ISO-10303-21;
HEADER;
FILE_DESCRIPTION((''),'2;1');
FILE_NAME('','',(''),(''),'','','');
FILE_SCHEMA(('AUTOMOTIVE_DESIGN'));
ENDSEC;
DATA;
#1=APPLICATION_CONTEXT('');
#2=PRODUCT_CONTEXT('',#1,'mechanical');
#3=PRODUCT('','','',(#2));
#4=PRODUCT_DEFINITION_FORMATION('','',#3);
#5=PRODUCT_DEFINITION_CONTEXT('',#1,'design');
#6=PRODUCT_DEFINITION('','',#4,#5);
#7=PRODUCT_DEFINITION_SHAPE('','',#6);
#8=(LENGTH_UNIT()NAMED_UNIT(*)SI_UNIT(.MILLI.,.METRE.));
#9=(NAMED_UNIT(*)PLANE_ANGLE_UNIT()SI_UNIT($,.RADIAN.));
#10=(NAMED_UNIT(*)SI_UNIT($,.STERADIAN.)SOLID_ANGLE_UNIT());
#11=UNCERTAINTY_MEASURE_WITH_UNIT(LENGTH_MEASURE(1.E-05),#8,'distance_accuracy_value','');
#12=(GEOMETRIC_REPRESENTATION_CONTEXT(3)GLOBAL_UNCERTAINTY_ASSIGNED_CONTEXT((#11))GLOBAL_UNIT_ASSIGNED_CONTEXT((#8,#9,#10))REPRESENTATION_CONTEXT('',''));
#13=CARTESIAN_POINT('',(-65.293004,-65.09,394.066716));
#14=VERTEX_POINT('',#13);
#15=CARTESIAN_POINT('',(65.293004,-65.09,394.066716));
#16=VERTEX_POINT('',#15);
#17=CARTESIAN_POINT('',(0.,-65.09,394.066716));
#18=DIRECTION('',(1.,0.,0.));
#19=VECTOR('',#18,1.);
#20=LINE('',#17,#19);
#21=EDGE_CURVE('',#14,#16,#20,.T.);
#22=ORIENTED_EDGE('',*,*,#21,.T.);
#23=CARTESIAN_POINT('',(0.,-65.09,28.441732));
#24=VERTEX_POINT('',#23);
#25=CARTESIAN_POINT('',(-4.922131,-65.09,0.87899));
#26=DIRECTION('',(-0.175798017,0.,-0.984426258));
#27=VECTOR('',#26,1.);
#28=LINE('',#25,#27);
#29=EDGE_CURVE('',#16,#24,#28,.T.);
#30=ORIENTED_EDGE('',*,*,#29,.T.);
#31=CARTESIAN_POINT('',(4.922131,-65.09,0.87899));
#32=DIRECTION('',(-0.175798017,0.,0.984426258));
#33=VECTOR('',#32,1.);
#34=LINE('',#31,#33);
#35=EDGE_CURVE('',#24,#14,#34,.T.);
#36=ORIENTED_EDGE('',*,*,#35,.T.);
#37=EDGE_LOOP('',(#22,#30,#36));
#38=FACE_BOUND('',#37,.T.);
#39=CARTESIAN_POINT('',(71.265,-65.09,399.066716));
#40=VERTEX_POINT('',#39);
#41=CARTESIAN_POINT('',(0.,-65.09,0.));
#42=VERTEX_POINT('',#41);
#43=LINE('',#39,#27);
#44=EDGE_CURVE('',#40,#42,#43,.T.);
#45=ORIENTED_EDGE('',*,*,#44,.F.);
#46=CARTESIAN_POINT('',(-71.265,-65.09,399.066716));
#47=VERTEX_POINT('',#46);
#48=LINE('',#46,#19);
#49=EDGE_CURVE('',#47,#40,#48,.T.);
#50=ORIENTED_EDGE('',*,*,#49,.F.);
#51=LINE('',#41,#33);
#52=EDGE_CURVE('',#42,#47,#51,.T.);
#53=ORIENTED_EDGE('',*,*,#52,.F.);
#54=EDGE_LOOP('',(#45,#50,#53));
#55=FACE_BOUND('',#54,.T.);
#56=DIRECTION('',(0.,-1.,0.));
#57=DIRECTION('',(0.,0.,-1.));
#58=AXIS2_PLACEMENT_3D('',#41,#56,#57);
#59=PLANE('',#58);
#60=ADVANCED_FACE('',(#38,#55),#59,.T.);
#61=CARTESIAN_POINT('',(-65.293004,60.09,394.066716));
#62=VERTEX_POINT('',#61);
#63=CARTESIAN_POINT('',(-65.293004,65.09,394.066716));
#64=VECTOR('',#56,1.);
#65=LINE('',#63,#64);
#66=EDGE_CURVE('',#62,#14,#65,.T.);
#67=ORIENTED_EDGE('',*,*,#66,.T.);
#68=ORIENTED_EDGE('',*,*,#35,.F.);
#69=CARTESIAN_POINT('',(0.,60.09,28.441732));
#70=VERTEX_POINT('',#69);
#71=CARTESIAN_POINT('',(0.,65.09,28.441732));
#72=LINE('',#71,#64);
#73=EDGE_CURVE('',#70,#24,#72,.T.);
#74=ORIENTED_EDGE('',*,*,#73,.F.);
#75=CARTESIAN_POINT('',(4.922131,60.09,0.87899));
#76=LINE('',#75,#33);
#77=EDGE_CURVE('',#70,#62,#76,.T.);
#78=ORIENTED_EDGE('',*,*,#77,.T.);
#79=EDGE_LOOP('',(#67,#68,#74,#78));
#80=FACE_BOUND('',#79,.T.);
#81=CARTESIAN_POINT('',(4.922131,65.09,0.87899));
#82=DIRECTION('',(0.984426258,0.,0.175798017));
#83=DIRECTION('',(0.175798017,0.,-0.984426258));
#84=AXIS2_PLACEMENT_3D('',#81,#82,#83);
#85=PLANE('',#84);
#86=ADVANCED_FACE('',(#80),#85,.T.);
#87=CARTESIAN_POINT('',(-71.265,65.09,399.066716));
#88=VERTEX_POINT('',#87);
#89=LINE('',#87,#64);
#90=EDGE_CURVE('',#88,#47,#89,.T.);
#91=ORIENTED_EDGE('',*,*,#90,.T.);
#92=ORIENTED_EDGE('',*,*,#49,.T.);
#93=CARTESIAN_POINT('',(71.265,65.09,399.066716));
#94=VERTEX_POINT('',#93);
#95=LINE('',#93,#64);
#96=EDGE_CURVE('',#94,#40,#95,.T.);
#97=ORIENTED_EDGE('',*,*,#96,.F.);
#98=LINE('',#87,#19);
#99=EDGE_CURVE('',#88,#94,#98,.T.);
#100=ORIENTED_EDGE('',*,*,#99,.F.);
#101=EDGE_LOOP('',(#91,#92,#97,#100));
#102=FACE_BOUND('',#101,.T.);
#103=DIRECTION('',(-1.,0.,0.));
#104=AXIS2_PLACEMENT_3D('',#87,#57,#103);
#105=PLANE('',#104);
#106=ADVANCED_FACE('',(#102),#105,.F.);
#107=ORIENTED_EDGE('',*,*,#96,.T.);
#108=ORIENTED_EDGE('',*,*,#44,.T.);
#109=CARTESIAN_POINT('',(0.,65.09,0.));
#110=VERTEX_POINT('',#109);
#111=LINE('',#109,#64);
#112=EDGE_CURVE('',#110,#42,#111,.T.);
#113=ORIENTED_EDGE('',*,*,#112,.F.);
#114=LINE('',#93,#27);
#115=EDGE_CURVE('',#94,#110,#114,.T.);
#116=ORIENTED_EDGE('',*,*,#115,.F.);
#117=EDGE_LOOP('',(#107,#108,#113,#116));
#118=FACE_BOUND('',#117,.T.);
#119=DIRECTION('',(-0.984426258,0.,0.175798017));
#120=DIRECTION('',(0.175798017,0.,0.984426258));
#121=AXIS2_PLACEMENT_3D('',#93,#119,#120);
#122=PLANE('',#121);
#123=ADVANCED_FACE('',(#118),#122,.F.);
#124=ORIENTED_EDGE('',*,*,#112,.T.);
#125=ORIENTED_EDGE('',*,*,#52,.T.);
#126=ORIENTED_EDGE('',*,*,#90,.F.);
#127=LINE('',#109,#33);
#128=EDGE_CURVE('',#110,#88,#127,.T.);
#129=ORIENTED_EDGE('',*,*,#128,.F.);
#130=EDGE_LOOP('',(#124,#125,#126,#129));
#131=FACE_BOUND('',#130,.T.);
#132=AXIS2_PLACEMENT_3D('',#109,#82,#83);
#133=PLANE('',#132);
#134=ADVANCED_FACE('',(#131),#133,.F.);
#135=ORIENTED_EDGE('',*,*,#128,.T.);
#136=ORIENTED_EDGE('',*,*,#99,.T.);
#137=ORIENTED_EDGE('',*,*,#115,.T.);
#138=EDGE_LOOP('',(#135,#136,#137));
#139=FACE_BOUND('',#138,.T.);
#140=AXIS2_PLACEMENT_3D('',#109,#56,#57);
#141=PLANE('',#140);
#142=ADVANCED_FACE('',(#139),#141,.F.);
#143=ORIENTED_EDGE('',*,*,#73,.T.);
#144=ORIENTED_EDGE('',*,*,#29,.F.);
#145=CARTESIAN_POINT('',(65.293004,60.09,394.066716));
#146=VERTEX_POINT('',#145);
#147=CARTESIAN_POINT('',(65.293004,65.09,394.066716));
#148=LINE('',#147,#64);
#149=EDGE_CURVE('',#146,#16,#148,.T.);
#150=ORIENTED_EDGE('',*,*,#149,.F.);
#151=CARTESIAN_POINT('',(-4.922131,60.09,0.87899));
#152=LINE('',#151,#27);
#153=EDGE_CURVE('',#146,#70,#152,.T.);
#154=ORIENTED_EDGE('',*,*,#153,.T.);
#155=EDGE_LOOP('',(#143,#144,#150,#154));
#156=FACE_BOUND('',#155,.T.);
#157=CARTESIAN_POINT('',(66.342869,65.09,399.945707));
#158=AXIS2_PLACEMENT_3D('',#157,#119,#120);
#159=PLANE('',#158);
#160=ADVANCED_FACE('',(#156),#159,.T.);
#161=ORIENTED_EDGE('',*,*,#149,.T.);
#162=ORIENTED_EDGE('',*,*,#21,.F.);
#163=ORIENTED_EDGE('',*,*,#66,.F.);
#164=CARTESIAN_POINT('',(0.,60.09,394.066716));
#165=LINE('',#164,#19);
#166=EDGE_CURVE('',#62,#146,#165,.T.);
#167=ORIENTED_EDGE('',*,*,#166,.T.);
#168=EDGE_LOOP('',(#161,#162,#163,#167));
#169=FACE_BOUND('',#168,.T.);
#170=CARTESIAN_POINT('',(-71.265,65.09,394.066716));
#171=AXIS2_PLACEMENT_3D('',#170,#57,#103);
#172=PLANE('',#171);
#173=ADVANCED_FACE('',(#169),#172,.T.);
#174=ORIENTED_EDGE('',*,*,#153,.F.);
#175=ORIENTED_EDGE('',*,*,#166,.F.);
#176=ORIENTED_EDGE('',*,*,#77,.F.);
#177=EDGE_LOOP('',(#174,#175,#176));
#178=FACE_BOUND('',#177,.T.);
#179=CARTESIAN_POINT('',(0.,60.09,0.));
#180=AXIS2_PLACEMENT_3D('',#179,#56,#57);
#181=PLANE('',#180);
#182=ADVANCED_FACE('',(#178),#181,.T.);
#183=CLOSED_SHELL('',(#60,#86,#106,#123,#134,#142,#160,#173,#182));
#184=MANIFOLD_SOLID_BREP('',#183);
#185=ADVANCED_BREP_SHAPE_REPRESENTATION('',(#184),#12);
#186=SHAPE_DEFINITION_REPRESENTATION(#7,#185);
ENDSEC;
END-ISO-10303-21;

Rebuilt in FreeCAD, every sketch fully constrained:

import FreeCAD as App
import Part
import Sketcher

V = App.Vector


def faces_at(feature, points):
    """Names of the faces that lie closest to the given points."""
    faces = feature.Shape.Faces
    near = lambda p: min(range(len(faces)), key=lambda i: faces[i].distToShape(Part.Vertex(*p))[0])
    return sorted({f"Face{near(p) + 1}" for p in points})

doc = App.newDocument("Part")
body = doc.addObject("PartDesign::Body", "Body")

sketch1 = body.newObject("Sketcher::SketchObject", "Sketch")
sketch1.AttachmentSupport = (doc.getObject("XZ_Plane"), [""])
sketch1.MapMode = "FlatFace"
sketch1.addGeometry(Part.LineSegment(V(0, 0, 0), V(-71, 399, 0)), False)
sketch1.addGeometry(Part.LineSegment(V(-71, 399, 0), V(71, 399, 0)), False)
sketch1.addGeometry(Part.LineSegment(V(71, 399, 0), V(0, 0, 0)), False)
sketch1.addConstraint(Sketcher.Constraint("Coincident", 0, 2, 1, 1))
sketch1.addConstraint(Sketcher.Constraint("Coincident", 1, 2, 2, 1))
sketch1.addConstraint(Sketcher.Constraint("Coincident", 2, 2, 0, 1))
sketch1.addConstraint(Sketcher.Constraint("Horizontal", 1))
sketch1.addConstraint(Sketcher.Constraint("Coincident", 2, 2, -1, 1))
sketch1.addConstraint(Sketcher.Constraint("Equal", 0, 2))
sketch1.addConstraint(Sketcher.Constraint("DistanceX", 1, 1, 1, 2, 142.53))
sketch1.addConstraint(Sketcher.Constraint("Distance", 0, 405.38))
pad1 = body.newObject("PartDesign::Pad", "Pad")
pad1.Profile = sketch1
pad1.Length = 130.18
pad1.Midplane = True
doc.recompute()

thickness = body.newObject("PartDesign::Thickness", "Thickness")
thickness.Base = (pad1, faces_at(pad1, [(0, -65.09, 199.533)]))
thickness.Value = 5
thickness.Reversed = True
thickness.Join = "Intersection"

doc.recompute()
